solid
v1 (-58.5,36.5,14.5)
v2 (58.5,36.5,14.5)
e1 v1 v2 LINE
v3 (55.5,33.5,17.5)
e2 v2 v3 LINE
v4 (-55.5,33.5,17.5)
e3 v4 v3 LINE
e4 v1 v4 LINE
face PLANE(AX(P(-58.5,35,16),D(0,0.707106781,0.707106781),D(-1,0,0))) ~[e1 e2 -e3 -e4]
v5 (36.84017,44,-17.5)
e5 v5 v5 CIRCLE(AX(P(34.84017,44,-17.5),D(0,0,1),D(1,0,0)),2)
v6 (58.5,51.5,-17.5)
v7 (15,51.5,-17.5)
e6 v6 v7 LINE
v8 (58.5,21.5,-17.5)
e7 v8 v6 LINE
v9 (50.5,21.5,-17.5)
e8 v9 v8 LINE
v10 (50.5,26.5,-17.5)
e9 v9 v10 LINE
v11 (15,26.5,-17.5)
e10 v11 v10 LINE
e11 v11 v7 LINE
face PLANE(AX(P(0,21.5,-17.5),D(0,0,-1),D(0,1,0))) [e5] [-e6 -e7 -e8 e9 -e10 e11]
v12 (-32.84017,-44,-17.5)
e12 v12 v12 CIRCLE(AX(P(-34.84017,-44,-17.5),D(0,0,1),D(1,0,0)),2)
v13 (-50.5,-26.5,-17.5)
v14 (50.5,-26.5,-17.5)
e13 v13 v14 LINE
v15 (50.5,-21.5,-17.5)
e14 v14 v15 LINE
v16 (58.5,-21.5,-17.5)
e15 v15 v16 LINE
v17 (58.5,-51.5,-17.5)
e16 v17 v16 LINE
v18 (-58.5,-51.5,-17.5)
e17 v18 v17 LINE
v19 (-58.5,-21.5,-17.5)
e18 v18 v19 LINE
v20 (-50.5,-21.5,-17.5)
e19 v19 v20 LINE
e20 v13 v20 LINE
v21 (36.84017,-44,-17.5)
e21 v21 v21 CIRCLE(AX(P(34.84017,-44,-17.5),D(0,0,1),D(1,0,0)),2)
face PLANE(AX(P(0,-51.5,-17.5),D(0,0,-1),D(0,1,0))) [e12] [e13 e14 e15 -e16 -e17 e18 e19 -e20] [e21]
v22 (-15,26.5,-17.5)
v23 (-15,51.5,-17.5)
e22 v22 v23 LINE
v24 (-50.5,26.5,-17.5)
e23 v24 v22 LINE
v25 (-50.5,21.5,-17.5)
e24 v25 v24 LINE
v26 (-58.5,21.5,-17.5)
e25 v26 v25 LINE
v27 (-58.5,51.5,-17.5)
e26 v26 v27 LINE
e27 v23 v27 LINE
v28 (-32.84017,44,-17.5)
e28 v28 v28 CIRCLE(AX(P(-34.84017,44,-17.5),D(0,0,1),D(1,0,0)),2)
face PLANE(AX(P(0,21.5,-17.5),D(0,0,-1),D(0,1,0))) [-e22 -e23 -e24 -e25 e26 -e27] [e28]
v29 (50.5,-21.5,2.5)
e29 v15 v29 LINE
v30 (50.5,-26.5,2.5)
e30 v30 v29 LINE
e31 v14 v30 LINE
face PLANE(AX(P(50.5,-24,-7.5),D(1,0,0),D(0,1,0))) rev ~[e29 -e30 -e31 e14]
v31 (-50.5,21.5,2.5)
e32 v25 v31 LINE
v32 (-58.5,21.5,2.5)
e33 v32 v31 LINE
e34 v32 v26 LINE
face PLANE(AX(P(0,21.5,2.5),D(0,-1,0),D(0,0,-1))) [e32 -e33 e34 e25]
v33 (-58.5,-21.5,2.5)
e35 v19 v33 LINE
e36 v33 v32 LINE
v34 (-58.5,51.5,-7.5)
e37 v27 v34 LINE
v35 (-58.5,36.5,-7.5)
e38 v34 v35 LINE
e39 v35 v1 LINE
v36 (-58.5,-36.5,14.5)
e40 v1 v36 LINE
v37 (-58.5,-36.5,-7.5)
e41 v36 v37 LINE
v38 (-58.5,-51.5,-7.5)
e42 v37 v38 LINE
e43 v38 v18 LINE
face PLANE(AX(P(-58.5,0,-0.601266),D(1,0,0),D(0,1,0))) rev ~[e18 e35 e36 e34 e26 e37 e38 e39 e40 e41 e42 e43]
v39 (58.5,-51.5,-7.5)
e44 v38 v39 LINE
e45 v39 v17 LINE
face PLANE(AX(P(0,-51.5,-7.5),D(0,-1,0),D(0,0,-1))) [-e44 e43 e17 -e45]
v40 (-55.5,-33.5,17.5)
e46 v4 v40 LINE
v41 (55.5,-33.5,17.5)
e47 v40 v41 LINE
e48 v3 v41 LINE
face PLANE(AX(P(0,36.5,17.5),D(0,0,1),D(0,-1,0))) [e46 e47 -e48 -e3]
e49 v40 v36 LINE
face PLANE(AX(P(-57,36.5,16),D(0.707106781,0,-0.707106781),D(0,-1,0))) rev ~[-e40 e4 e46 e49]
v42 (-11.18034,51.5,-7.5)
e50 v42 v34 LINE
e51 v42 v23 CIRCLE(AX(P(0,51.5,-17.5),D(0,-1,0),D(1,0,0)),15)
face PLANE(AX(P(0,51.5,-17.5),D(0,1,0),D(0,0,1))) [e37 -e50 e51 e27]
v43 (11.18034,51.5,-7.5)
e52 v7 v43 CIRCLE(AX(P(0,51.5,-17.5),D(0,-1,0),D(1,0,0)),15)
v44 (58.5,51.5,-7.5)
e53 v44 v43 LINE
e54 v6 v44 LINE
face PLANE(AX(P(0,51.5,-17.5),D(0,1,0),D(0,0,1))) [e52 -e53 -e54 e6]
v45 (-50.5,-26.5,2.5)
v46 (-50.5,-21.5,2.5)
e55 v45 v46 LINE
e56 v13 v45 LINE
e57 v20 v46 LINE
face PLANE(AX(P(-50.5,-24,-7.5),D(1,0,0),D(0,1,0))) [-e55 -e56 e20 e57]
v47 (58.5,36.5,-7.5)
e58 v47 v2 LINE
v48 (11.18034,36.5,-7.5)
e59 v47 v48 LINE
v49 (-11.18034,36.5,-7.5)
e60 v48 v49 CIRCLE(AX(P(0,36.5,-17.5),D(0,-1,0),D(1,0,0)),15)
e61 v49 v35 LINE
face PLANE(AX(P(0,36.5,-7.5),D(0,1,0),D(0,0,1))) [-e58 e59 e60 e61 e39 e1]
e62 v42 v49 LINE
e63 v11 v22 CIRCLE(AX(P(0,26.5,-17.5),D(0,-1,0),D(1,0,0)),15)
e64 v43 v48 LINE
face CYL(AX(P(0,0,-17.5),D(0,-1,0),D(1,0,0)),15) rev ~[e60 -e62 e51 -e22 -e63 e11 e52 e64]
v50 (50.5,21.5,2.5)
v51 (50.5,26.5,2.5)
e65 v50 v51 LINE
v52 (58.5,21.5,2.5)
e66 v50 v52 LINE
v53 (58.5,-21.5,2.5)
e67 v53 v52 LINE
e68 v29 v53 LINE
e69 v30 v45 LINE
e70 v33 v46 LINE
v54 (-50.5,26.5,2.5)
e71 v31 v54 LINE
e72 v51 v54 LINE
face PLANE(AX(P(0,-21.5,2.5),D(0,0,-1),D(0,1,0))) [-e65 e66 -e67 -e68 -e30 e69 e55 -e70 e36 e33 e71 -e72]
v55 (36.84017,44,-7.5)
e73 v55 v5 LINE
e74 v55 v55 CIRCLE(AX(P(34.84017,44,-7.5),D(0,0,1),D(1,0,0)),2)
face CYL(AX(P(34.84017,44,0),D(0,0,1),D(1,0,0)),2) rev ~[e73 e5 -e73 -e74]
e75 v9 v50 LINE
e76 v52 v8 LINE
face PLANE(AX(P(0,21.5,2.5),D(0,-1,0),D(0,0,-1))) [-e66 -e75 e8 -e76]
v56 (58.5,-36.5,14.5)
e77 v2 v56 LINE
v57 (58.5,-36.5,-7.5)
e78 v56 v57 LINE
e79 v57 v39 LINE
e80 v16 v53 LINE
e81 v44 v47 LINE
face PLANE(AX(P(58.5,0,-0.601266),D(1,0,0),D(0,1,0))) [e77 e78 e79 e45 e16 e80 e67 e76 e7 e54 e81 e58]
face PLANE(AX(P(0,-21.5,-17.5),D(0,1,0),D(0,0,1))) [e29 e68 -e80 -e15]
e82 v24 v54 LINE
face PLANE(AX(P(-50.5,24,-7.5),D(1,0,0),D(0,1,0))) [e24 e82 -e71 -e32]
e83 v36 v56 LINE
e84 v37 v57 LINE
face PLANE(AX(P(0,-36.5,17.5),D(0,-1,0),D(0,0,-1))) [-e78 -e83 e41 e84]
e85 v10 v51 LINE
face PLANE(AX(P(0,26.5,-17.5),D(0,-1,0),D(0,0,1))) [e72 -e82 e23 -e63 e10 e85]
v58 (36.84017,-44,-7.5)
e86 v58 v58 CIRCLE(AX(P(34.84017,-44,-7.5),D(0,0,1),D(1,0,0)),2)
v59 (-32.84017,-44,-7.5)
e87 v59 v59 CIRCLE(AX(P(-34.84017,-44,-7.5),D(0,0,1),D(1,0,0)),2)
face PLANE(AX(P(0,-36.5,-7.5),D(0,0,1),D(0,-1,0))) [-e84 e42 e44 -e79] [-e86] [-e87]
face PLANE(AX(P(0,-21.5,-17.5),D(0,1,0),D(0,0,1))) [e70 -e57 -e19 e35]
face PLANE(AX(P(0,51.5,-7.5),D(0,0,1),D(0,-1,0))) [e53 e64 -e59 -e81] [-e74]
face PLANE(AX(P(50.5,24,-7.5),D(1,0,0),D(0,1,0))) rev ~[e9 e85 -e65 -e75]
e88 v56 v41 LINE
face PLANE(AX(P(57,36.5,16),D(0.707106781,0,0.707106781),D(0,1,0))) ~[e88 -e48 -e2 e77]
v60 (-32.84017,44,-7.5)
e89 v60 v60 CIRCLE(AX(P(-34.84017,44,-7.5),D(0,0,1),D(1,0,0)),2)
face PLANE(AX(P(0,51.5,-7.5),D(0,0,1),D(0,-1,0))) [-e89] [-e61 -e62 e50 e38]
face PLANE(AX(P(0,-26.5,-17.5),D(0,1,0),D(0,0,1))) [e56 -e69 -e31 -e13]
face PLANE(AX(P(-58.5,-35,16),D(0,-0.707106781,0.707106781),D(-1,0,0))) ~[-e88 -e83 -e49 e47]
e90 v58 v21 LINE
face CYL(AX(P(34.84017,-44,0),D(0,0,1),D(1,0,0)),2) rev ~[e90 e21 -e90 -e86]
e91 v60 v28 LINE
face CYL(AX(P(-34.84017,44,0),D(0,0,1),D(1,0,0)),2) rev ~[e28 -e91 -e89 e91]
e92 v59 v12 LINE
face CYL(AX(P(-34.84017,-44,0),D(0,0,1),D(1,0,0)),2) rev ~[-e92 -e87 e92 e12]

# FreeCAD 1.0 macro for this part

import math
import FreeCAD as App
import Part
import Sketcher

V = App.Vector
Q = App.Units.Quantity


def edges_at(feature, points):
    """Names of the edges that pass closest to the given points."""
    edges = feature.Shape.Edges
    near = lambda p: min(range(len(edges)), key=lambda i: edges[i].distToShape(Part.Vertex(*p))[0])
    return sorted({f"Edge{near(p) + 1}" for p in points})


def add_polygon(sketch, points):
    """Adds a closed chain of lines whose ends are joined by coincident constraints."""
    first, n = sketch.GeometryCount, len(points)
    for a, b in zip(points, points[1:] + points[:1]):
        sketch.addGeometry(Part.LineSegment(App.Vector(*a, 0), App.Vector(*b, 0)), False)
    for i in range(n):
        sketch.addConstraint(Sketcher.Constraint("Coincident", first + i, 2, first + (i + 1) % n, 1))

doc = App.newDocument("Part")
body = doc.addObject("PartDesign::Body", "Body")

# Sketch on YZ plane
sketch1 = body.newObject("Sketcher::SketchObject", "Sketch")
sketch1.AttachmentSupport = (doc.getObject("YZ_Plane"), [""])
sketch1.MapMode = "FlatFace"
add_polygon(sketch1, [(36, -8), (36, 18), (-36, 18), (-36, -8), (-52, -8), (-52, -18), (-22, -18), (-22, 2), (22, 2), (22, -18), (52, -18), (52, -8)])  # lines 0-11
sketch1.addConstraint([
    Sketcher.Constraint("Vertical", 0),
    Sketcher.Constraint("Horizontal", 1),
    Sketcher.Constraint("Vertical", 2),
    Sketcher.Constraint("Horizontal", 3),
    Sketcher.Constraint("Vertical", 4),
    Sketcher.Constraint("Horizontal", 5),
    Sketcher.Constraint("Vertical", 6),
    Sketcher.Constraint("Horizontal", 7),
    Sketcher.Constraint("Vertical", 8),
    Sketcher.Constraint("Horizontal", 9),
    Sketcher.Constraint("Vertical", 10),
    Sketcher.Constraint("Horizontal", 11),
    Sketcher.Constraint("Symmetric", 5, 2, 8, 2, -2),
    Sketcher.Constraint("Symmetric", 3, 2, 10, 2, -2),
    Sketcher.Constraint("Equal", 3, 11),
    Sketcher.Constraint("DistanceX", 1, 2, 1, 1, Q("73 mm")),
    Sketcher.Constraint("DistanceX", 3, 2, 3, 1, Q("15 mm")),
    Sketcher.Constraint("DistanceX", 5, 1, 5, 2, Q("30 mm")),
    Sketcher.Constraint("DistanceY", 0, 1, 0, 2, Q("25 mm")),
    Sketcher.Constraint("DistanceY", 4, 2, 4, 1, Q("10 mm")),
    Sketcher.Constraint("DistanceY", 6, 1, 6, 2, Q("20 mm")),
    Sketcher.Constraint("DistanceY", -1, 1, 0, 2, Q("17.5 mm")),
])
pad1 = body.newObject("PartDesign::Pad", "Pad")
pad1.Profile = sketch1
pad1.Length = 117
pad1.Midplane = True

# Sketch on XZ plane
sketch2 = body.newObject("Sketcher::SketchObject", "Sketch001")
sketch2.AttachmentSupport = (doc.getObject("XZ_Plane"), [""])
sketch2.MapMode = "FlatFace"
sketch2.addGeometry([
    Part.LineSegment(V(-15, -18, 0), V(15, -18, 0)),
    Part.ArcOfCircle(Part.Circle(V(0, -18, 0), V(0, 0, 1), 15), math.radians(0), math.radians(180)),
], False)
sketch2.addConstraint([
    Sketcher.Constraint("Coincident", 0, 1, 1, 2),
    Sketcher.Constraint("Coincident", 1, 1, 0, 2),
    Sketcher.Constraint("Horizontal", 0),
    Sketcher.Constraint("PointOnObject", 1, 3, -2),
    Sketcher.Constraint("Horizontal", 1, 3, 0, 1),
    Sketcher.Constraint("Radius", 1, Q("15 mm")),
    Sketcher.Constraint("DistanceY", 1, 3, -1, 1, Q("17.5 mm")),
])
pocket1 = body.newObject("PartDesign::Pocket", "Pocket")
pocket1.Profile = sketch2
pocket1.Length = 148.4

# Sketch on XY plane
sketch3 = body.newObject("Sketcher::SketchObject", "Sketch002")
sketch3.AttachmentSupport = (doc.getObject("XY_Plane"), [""])
sketch3.MapMode = "FlatFace"
sketch3.addGeometry([
    Part.Circle(V(-34.8, -44, 0), V(0, 0, 1), 2),
    Part.Circle(V(34.8, -44, 0), V(0, 0, 1), 2),
    Part.Circle(V(-34.8, 44, 0), V(0, 0, 1), 2),
    Part.Circle(V(34.8, 44, 0), V(0, 0, 1), 2),
], False)
sketch3.addConstraint([
    Sketcher.Constraint("Equal", 0, 1),
    Sketcher.Constraint("Equal", 1, 2),
    Sketcher.Constraint("Equal", 2, 3),
    Sketcher.Constraint("Symmetric", 1, 3, 2, 3, -1, 1),
    Sketcher.Constraint("Symmetric", 0, 3, 3, 3, -1, 1),
    Sketcher.Constraint("Symmetric", 0, 3, 1, 3, -2),
    Sketcher.Constraint("Diameter", 0, Q("4 mm")),
    Sketcher.Constraint("DistanceY", 0, 3, -1, 1, Q("44 mm")),
    Sketcher.Constraint("DistanceX", 0, 3, -1, 1, Q("34.84017 mm")),
])
pocket2 = body.newObject("PartDesign::Pocket", "Pocket001")
pocket2.Profile = sketch3
pocket2.Length = 25

# Sketch on YZ plane
sketch4 = body.newObject("Sketcher::SketchObject", "Sketch003")
sketch4.AttachmentSupport = (doc.getObject("YZ_Plane"), [""])
sketch4.MapMode = "FlatFace"
add_polygon(sketch4, [(22, 2), (22, -18), (26, -18), (26, 2)])  # lines 0-3
add_polygon(sketch4, [(-26, 2), (-26, -18), (-22, -18), (-22, 2)])  # lines 4-7
sketch4.addConstraint([
    Sketcher.Constraint("Vertical", 0),
    Sketcher.Constraint("Horizontal", 1),
    Sketcher.Constraint("Vertical", 2),
    Sketcher.Constraint("Horizontal", 3),
    Sketcher.Constraint("Vertical", 4),
    Sketcher.Constraint("Horizontal", 5),
    Sketcher.Constraint("Vertical", 6),
    Sketcher.Constraint("Horizontal", 7),
    Sketcher.Constraint("Symmetric", 1, 2, 4, 2, -2),
    Sketcher.Constraint("Symmetric", 3, 2, 6, 2, -2),
    Sketcher.Constraint("DistanceX", 1, 1, 1, 2, Q("5 mm")),
    Sketcher.Constraint("DistanceY", 0, 2, 0, 1, Q("20 mm")),
    Sketcher.Constraint("DistanceX", 4, 2, 0, 2, Q("48 mm")),
    Sketcher.Constraint("DistanceY", 0, 2, -1, 1, Q("17.5 mm")),
])
pocket3 = body.newObject("PartDesign::Pocket", "Pocket002")
pocket3.Profile = sketch4
pocket3.Length = 101
pocket3.Midplane = True
doc.recompute()

chamfer = body.newObject("PartDesign::Chamfer", "Chamfer")
chamfer.Base = (pocket3, edges_at(pocket3, [
    (0, 36.5, 17.5),
    (-58.5, 0, 17.5),
    (58.5, 0, 17.5),
    (0, -36.5, 17.5),
]))
chamfer.Size = 3

doc.recompute()
